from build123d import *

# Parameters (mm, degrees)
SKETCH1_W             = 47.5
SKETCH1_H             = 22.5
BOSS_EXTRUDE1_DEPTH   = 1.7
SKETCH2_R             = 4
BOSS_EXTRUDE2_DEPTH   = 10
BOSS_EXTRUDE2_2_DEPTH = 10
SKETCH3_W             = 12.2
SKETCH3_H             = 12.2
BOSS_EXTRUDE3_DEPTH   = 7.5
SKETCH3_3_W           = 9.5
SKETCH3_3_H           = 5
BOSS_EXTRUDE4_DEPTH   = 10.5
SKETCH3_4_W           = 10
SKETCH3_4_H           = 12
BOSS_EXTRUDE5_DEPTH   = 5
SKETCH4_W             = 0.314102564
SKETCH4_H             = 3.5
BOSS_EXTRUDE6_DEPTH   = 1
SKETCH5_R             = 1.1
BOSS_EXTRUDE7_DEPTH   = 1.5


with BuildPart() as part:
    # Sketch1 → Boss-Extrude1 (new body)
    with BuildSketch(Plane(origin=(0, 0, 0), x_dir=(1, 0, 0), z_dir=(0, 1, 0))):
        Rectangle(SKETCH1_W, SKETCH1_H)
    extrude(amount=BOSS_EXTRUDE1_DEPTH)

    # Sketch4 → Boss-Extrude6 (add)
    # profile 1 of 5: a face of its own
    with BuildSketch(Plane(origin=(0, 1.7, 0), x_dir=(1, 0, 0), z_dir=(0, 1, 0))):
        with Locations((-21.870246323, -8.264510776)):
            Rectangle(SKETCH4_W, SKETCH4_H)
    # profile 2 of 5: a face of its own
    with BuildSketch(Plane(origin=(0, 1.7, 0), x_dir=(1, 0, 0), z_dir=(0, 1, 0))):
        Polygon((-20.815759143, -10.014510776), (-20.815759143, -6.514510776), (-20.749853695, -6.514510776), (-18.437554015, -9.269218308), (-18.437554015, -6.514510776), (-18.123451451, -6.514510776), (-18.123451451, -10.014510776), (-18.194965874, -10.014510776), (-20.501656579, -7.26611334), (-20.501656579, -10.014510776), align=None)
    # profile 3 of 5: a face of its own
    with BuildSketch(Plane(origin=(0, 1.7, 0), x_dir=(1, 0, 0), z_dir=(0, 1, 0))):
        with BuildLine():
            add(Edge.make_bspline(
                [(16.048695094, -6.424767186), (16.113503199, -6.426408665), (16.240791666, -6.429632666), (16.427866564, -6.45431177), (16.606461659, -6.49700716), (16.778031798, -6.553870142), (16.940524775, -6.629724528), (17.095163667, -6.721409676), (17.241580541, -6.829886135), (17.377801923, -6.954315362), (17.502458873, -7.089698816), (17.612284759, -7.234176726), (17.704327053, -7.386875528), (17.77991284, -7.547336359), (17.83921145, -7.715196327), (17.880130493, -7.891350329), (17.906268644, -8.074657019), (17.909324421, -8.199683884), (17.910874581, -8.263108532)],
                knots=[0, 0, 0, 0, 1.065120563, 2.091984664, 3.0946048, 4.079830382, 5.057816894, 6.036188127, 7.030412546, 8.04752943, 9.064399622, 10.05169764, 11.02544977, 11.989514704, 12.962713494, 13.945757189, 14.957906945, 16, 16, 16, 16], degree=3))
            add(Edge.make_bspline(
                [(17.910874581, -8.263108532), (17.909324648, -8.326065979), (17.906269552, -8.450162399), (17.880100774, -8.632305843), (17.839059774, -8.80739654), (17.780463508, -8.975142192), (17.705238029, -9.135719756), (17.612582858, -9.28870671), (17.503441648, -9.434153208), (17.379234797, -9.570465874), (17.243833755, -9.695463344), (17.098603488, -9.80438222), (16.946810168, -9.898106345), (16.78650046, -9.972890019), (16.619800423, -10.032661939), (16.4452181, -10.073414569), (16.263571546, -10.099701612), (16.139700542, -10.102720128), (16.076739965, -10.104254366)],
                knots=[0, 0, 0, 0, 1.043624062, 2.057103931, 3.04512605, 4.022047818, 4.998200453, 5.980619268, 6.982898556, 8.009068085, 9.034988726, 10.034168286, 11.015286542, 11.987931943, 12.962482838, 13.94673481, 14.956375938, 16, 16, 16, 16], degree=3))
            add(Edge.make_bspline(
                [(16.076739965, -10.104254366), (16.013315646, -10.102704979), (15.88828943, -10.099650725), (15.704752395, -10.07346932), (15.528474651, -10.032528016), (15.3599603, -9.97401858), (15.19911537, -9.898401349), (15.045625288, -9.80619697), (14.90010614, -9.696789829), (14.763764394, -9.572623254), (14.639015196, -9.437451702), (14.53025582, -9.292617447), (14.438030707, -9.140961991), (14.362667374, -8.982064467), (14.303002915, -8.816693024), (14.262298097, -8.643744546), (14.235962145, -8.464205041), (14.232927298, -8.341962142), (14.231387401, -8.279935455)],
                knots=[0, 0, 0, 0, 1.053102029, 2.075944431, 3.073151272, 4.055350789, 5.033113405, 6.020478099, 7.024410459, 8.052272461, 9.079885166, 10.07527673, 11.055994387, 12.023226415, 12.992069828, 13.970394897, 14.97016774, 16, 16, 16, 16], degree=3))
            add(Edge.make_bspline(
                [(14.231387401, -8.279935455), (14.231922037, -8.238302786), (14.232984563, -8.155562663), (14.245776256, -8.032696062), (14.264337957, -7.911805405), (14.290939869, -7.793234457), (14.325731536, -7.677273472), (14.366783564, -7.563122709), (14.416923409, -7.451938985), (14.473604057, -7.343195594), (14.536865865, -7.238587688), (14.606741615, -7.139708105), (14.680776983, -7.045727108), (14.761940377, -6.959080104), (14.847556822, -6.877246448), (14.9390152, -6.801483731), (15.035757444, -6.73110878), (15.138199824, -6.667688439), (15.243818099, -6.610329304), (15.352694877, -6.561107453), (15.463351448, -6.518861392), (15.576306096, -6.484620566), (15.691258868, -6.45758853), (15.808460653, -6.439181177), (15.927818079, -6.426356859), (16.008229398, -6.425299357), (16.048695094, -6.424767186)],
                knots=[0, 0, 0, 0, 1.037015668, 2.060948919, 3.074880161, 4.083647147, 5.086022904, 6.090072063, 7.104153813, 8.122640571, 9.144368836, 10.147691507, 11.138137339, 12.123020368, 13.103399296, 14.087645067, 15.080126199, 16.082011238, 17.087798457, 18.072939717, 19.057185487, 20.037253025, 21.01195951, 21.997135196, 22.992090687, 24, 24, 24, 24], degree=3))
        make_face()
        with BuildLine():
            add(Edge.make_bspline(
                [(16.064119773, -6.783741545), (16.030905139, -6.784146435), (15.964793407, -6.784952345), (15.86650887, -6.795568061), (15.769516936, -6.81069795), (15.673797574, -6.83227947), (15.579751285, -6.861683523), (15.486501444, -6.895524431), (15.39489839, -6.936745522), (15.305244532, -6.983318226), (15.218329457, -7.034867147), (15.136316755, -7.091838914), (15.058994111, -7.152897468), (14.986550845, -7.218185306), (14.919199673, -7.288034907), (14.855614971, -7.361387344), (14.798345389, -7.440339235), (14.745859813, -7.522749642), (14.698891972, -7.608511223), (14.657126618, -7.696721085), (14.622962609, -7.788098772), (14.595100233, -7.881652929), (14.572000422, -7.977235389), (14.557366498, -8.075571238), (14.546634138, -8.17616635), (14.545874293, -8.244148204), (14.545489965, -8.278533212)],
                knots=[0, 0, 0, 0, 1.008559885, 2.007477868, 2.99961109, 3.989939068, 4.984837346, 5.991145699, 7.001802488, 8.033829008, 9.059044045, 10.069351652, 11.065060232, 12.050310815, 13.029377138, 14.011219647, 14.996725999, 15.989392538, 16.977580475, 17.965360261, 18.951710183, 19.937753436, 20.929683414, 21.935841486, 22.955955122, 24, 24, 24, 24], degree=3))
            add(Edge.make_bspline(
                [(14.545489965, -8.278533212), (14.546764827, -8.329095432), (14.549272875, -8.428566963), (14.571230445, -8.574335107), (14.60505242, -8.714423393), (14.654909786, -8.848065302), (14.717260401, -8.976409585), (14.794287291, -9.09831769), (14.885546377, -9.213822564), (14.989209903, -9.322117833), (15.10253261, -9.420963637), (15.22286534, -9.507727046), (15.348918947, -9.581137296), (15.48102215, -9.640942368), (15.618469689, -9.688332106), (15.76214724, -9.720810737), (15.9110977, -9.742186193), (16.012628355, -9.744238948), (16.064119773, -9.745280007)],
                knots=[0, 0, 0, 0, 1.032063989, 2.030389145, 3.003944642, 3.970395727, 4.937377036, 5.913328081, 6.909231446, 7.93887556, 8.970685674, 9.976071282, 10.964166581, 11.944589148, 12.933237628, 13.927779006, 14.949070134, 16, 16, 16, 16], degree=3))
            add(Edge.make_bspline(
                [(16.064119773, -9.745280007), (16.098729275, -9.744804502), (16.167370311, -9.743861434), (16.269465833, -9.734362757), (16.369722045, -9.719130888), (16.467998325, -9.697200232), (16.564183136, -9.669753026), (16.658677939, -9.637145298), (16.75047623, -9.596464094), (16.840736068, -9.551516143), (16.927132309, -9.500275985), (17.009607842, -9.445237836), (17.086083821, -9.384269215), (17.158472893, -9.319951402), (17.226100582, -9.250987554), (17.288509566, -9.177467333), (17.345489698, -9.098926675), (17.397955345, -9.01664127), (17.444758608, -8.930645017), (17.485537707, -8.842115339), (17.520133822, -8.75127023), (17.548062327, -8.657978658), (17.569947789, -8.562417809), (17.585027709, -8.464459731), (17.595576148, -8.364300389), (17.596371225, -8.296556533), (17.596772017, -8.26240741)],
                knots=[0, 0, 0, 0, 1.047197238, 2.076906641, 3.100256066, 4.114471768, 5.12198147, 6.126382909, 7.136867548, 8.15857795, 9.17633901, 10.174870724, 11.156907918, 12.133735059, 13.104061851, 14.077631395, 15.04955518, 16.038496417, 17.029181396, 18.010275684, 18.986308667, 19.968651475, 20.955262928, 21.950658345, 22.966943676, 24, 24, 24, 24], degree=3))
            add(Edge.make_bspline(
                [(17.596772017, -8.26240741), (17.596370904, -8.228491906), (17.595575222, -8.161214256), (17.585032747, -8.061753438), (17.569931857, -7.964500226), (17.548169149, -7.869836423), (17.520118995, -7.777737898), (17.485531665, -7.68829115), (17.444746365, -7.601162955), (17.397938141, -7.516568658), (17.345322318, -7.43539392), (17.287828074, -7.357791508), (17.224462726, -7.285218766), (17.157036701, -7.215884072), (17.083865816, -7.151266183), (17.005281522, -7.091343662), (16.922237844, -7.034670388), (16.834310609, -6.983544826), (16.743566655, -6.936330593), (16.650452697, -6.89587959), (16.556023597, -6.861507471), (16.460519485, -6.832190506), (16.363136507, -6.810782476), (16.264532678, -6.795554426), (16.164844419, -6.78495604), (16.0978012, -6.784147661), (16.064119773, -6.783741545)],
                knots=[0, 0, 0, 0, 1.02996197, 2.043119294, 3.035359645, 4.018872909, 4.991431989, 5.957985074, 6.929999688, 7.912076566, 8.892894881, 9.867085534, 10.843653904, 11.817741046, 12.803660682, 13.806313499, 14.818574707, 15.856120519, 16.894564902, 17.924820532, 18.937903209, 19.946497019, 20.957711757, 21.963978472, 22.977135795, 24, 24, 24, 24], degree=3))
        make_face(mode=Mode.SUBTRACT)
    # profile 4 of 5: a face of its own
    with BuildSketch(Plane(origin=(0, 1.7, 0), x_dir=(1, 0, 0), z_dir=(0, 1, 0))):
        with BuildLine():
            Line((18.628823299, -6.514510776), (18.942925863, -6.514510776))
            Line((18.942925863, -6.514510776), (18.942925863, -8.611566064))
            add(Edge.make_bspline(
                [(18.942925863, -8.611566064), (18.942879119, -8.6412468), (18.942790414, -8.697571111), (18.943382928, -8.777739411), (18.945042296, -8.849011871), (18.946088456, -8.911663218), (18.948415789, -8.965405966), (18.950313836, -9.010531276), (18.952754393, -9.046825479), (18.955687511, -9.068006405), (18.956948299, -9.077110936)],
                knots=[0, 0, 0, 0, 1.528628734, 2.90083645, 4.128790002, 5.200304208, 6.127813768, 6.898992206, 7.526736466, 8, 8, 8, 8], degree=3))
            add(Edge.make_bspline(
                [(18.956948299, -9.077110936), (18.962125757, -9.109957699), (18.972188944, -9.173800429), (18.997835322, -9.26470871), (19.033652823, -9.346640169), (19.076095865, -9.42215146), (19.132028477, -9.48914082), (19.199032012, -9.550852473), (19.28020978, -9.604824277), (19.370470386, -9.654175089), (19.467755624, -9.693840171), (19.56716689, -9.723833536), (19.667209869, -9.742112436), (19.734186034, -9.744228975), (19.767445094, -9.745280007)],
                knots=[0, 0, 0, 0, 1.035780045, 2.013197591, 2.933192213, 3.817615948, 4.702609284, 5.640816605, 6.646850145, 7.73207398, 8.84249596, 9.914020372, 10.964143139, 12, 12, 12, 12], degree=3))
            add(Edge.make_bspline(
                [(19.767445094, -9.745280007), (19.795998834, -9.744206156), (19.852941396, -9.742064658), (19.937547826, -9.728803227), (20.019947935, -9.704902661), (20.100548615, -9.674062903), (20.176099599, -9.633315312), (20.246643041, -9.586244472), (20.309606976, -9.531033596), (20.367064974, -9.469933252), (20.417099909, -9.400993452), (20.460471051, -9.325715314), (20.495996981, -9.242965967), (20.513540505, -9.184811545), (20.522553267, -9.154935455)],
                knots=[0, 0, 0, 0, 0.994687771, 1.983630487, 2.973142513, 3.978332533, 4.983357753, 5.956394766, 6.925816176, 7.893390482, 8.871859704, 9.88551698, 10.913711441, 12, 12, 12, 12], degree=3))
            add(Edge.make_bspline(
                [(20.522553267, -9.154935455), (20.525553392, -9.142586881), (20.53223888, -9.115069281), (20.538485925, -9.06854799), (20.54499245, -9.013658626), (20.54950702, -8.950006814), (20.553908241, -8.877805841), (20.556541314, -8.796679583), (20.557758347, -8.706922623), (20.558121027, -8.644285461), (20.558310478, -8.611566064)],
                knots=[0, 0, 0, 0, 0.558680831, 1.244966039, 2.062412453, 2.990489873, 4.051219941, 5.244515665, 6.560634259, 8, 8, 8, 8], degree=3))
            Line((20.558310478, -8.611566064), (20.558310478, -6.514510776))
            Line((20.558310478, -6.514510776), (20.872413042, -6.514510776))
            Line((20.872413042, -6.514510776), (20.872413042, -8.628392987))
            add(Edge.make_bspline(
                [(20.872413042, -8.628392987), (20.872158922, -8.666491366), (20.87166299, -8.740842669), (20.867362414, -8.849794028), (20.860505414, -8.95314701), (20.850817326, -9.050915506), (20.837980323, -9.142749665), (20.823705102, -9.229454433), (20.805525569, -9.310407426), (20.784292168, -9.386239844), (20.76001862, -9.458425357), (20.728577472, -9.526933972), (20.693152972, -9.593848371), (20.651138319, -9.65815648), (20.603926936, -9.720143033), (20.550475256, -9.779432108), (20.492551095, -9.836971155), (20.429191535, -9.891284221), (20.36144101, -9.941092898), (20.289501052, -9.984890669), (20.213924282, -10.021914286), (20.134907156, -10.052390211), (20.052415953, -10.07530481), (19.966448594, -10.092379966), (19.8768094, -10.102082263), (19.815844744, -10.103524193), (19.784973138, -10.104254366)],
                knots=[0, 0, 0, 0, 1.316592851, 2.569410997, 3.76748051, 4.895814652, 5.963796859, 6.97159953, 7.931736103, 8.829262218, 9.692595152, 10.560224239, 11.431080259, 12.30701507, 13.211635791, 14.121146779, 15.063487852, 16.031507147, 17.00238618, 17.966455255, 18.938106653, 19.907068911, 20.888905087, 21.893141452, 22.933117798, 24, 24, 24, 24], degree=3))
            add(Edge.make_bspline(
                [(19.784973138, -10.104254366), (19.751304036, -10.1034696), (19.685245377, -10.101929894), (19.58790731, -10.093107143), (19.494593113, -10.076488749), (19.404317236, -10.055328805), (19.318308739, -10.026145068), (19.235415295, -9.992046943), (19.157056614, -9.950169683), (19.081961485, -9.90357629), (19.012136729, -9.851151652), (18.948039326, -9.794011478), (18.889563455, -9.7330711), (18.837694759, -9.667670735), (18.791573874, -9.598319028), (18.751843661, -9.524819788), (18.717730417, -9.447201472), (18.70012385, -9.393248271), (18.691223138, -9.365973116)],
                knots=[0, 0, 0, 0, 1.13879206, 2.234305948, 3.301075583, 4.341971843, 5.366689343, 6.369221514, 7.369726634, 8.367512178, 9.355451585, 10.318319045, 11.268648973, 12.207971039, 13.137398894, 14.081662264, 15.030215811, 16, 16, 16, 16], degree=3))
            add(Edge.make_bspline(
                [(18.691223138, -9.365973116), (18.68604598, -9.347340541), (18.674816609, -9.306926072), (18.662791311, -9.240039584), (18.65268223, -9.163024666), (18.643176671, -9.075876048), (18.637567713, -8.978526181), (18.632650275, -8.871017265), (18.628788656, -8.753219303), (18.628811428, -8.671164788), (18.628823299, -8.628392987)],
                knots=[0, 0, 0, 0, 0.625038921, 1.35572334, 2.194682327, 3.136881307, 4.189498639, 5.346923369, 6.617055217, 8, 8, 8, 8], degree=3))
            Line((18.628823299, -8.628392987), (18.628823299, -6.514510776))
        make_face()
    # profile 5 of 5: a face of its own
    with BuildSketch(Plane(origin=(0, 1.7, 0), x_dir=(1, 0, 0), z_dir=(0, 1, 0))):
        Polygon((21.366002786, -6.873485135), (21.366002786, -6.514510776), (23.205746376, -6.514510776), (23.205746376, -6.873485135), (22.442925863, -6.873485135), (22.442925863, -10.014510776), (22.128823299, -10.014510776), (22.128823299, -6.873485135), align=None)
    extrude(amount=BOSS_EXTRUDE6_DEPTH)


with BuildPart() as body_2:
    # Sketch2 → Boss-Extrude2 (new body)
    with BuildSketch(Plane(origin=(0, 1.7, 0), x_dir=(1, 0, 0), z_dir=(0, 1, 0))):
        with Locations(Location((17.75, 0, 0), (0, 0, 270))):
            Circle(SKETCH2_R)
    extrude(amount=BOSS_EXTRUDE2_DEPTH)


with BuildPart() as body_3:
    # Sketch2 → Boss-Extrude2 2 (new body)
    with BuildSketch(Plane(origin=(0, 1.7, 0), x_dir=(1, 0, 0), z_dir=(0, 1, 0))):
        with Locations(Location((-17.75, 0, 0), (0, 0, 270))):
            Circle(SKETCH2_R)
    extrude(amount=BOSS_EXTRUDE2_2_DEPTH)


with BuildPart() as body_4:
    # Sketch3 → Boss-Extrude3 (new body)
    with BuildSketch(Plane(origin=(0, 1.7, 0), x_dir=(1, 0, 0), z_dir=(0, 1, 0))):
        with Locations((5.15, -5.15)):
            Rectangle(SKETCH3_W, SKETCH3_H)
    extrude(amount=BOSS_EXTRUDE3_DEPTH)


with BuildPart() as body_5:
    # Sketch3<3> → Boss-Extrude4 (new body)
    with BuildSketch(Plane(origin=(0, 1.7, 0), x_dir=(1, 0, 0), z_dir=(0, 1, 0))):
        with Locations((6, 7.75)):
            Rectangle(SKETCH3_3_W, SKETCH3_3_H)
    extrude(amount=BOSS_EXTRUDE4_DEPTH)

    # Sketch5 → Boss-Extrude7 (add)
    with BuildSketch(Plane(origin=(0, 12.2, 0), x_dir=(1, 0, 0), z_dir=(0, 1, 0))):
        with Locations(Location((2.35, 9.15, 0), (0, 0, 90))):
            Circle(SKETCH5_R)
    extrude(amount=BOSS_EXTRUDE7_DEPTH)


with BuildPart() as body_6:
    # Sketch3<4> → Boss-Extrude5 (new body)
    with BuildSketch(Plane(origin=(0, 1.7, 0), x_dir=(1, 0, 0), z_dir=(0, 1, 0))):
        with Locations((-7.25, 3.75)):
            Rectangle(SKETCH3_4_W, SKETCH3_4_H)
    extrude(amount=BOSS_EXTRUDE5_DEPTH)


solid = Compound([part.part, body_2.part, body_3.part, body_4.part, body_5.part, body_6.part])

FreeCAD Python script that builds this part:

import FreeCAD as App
import Part
import Sketcher
from FreeCAD import Vector

doc = App.newDocument("Part")
body = doc.addObject("PartDesign::Body", "Body")

# Sketch on XZ plane
sketch1 = body.newObject("Sketcher::SketchObject", "Sketch")
sketch1.AttachmentSupport = (doc.getObject("XZ_Plane"), [""])
sketch1.MapMode = "FlatFace"
sketch1.addGeometry(Part.LineSegment(Vector(-24, -11, 0), Vector(-24, 11, 0)), False)
sketch1.addGeometry(Part.LineSegment(Vector(-24, 11, 0), Vector(24, 11, 0)), False)
sketch1.addGeometry(Part.LineSegment(Vector(24, 11, 0), Vector(24, -11, 0)), False)
sketch1.addGeometry(Part.LineSegment(Vector(24, -11, 0), Vector(-24, -11, 0)), False)
sketch1.addConstraint(Sketcher.Constraint("Coincident", 0, 2, 1, 1))
sketch1.addConstraint(Sketcher.Constraint("Coincident", 1, 2, 2, 1))
sketch1.addConstraint(Sketcher.Constraint("Coincident", 2, 2, 3, 1))
sketch1.addConstraint(Sketcher.Constraint("Coincident", 3, 2, 0, 1))
sketch1.addConstraint(Sketcher.Constraint("Vertical", 0))
sketch1.addConstraint(Sketcher.Constraint("Horizontal", 1))
sketch1.addConstraint(Sketcher.Constraint("Vertical", 2))
sketch1.addConstraint(Sketcher.Constraint("Horizontal", 3))
sketch1.addConstraint(Sketcher.Constraint("Symmetric", 0, 2, 2, 2, -1, 1))
sketch1.addConstraint(Sketcher.Constraint("DistanceX", 1, 1, 1, 2, 47.5))
sketch1.addConstraint(Sketcher.Constraint("DistanceY", 0, 1, 0, 2, 22.5))
pad1 = body.newObject("PartDesign::Pad", "Pad")
pad1.Profile = sketch1
pad1.Length = 1.7
pad1.Reversed = True

# Sketch on XZ plane
sketch2 = body.newObject("Sketcher::SketchObject", "Sketch001")
sketch2.AttachmentSupport = (doc.getObject("XZ_Plane"), [""])
sketch2.MapMode = "FlatFace"
sketch2.AttachmentOffset = App.Placement(Vector(0, 0, -1.7), App.Rotation())
sketch2.addGeometry(Part.LineSegment(Vector(-22.027298, 6.514511, 0), Vector(-22.027298, 10.014511, 0)), False)
sketch2.addGeometry(Part.LineSegment(Vector(-22.027298, 10.014511, 0), Vector(-21.713195, 10.014511, 0)), False)
sketch2.addGeometry(Part.LineSegment(Vector(-21.713195, 10.014511, 0), Vector(-21.713195, 6.514511, 0)), False)
sketch2.addGeometry(Part.LineSegment(Vector(-21.713195, 6.514511, 0), Vector(-22.027298, 6.514511, 0)), False)
sketch2.addGeometry(Part.LineSegment(Vector(-20.815759, 6.514511, 0), Vector(-20.815759, 10.014511, 0)), False)
sketch2.addGeometry(Part.LineSegment(Vector(-20.815759, 10.014511, 0), Vector(-20.501657, 10.014511, 0)), False)
sketch2.addGeometry(Part.LineSegment(Vector(-20.501657, 10.014511, 0), Vector(-20.501657, 7.266113, 0)), False)
sketch2.addGeometry(Part.LineSegment(Vector(-20.501657, 7.266113, 0), Vector(-18.194966, 10.014511, 0)), False)
sketch2.addGeometry(Part.LineSegment(Vector(-18.194966, 10.014511, 0), Vector(-18.123451, 10.014511, 0)), False)
sketch2.addGeometry(Part.LineSegment(Vector(-18.123451, 10.014511, 0), Vector(-18.123451, 6.514511, 0)), False)
sketch2.addGeometry(Part.LineSegment(Vector(-18.123451, 6.514511, 0), Vector(-18.437554, 6.514511, 0)), False)
sketch2.addGeometry(Part.LineSegment(Vector(-18.437554, 6.514511, 0), Vector(-18.437554, 9.269218, 0)), False)
sketch2.addGeometry(Part.LineSegment(Vector(-18.437554, 9.269218, 0), Vector(-20.749854, 6.514511, 0)), False)
sketch2.addGeometry(Part.LineSegment(Vector(-20.749854, 6.514511, 0), Vector(-20.815759, 6.514511, 0)), False)
sketch2.addGeometry(Part.BSplineCurve([Vector(16.048695, 6.424767, 0), Vector(16.113503, 6.426409, 0), Vector(16.240792, 6.429633, 0), Vector(16.427867, 6.454312, 0), Vector(16.606462, 6.497007, 0), Vector(16.778032, 6.55387, 0), Vector(16.940525, 6.629725, 0), Vector(17.095164, 6.72141, 0), Vector(17.241581, 6.829886, 0), Vector(17.377802, 6.954315, 0), Vector(17.502459, 7.089699, 0), Vector(17.612285, 7.234177, 0), Vector(17.704327, 7.386876, 0), Vector(17.779913, 7.547336, 0), Vector(17.839211, 7.715196, 0), Vector(17.88013, 7.89135, 0), Vector(17.906269, 8.074657, 0), Vector(17.909324, 8.199684, 0), Vector(17.910875, 8.263109, 0)], [4, 1, 1, 1, 1, 1, 1, 1, 1, 1, 1, 1, 1, 1, 1, 1, 4], [0, 1.065120563, 2.091984664, 3.0946048, 4.079830382, 5.057816894, 6.036188127, 7.030412546, 8.04752943, 9.064399622, 10.05169764, 11.02544977, 11.989514704, 12.962713494, 13.945757189, 14.957906945, 16], False, 3, [1, 1, 1, 1, 1, 1, 1, 1, 1, 1, 1, 1, 1, 1, 1, 1, 1, 1, 1], False), False)
sketch2.addGeometry(Part.BSplineCurve([Vector(14.231387, 8.279935, 0), Vector(14.231922, 8.238303, 0), Vector(14.232985, 8.155563, 0), Vector(14.245776, 8.032696, 0), Vector(14.264338, 7.911805, 0), Vector(14.29094, 7.793234, 0), Vector(14.325732, 7.677273, 0), Vector(14.366784, 7.563123, 0), Vector(14.416923, 7.451939, 0), Vector(14.473604, 7.343196, 0), Vector(14.536866, 7.238588, 0), Vector(14.606742, 7.139708, 0), Vector(14.680777, 7.045727, 0), Vector(14.76194, 6.95908, 0), Vector(14.847557, 6.877246, 0), Vector(14.939015, 6.801484, 0), Vector(15.035757, 6.731109, 0), Vector(15.1382, 6.667688, 0), Vector(15.243818, 6.610329, 0), Vector(15.352695, 6.561107, 0), Vector(15.463351, 6.518861, 0), Vector(15.576306, 6.484621, 0), Vector(15.691259, 6.457589, 0), Vector(15.808461, 6.439181, 0), Vector(15.927818, 6.426357, 0), Vector(16.008229, 6.425299, 0), Vector(16.048695, 6.424767, 0)], [4, 1, 1, 1, 1, 1, 1, 1, 1, 1, 1, 1, 1, 1, 1, 1, 1, 1, 1, 1, 1, 1, 1, 1, 4], [0, 1.037015668, 2.060948919, 3.074880161, 4.083647147, 5.086022904, 6.090072063, 7.104153813, 8.122640571, 9.144368836, 10.147691507, 11.138137339, 12.123020368, 13.103399296, 14.087645067, 15.080126199, 16.082011238, 17.087798457, 18.072939717, 19.057185487, 20.037253025, 21.01195951, 21.997135196, 22.992090687, 24], False, 3, [1, 1, 1, 1, 1, 1, 1, 1, 1, 1, 1, 1, 1, 1, 1, 1, 1, 1, 1, 1, 1, 1, 1, 1, 1, 1, 1], False), False)
sketch2.addGeometry(Part.BSplineCurve([Vector(16.07674, 10.104254, 0), Vector(16.013316, 10.102705, 0), Vector(15.888289, 10.099651, 0), Vector(15.704752, 10.073469, 0), Vector(15.528475, 10.032528, 0), Vector(15.35996, 9.974019, 0), Vector(15.199115, 9.898401, 0), Vector(15.045625, 9.806197, 0), Vector(14.900106, 9.69679, 0), Vector(14.763764, 9.572623, 0), Vector(14.639015, 9.437452, 0), Vector(14.530256, 9.292617, 0), Vector(14.438031, 9.140962, 0), Vector(14.362667, 8.982064, 0), Vector(14.303003, 8.816693, 0), Vector(14.262298, 8.643745, 0), Vector(14.235962, 8.464205, 0), Vector(14.232927, 8.341962, 0), Vector(14.231387, 8.279935, 0)], [4, 1, 1, 1, 1, 1, 1, 1, 1, 1, 1, 1, 1, 1, 1, 1, 4], [0, 1.053102029, 2.075944431, 3.073151272, 4.055350789, 5.033113405, 6.020478099, 7.024410459, 8.052272461, 9.079885166, 10.07527673, 11.055994387, 12.023226415, 12.992069828, 13.970394897, 14.97016774, 16], False, 3, [1, 1, 1, 1, 1, 1, 1, 1, 1, 1, 1, 1, 1, 1, 1, 1, 1, 1, 1], False), False)
sketch2.addGeometry(Part.BSplineCurve([Vector(17.910875, 8.263109, 0), Vector(17.909325, 8.326066, 0), Vector(17.90627, 8.450162, 0), Vector(17.880101, 8.632306, 0), Vector(17.83906, 8.807397, 0), Vector(17.780464, 8.975142, 0), Vector(17.705238, 9.13572, 0), Vector(17.612583, 9.288707, 0), Vector(17.503442, 9.434153, 0), Vector(17.379235, 9.570466, 0), Vector(17.243834, 9.695463, 0), Vector(17.098603, 9.804382, 0), Vector(16.94681, 9.898106, 0), Vector(16.7865, 9.97289, 0), Vector(16.6198, 10.032662, 0), Vector(16.445218, 10.073415, 0), Vector(16.263572, 10.099702, 0), Vector(16.139701, 10.10272, 0), Vector(16.07674, 10.104254, 0)], [4, 1, 1, 1, 1, 1, 1, 1, 1, 1, 1, 1, 1, 1, 1, 1, 4], [0, 1.043624062, 2.057103931, 3.04512605, 4.022047818, 4.998200453, 5.980619268, 6.982898556, 8.009068085, 9.034988726, 10.034168286, 11.015286542, 11.987931943, 12.962482838, 13.94673481, 14.956375938, 16], False, 3, [1, 1, 1, 1, 1, 1, 1, 1, 1, 1, 1, 1, 1, 1, 1, 1, 1, 1, 1], False), False)
sketch2.addGeometry(Part.BSplineCurve([Vector(17.596772, 8.262407, 0), Vector(17.596371, 8.228492, 0), Vector(17.595575, 8.161214, 0), Vector(17.585033, 8.061753, 0), Vector(17.569932, 7.9645, 0), Vector(17.548169, 7.869836, 0), Vector(17.520119, 7.777738, 0), Vector(17.485532, 7.688291, 0), Vector(17.444746, 7.601163, 0), Vector(17.397938, 7.516569, 0), Vector(17.345322, 7.435394, 0), Vector(17.287828, 7.357792, 0), Vector(17.224463, 7.285219, 0), Vector(17.157037, 7.215884, 0), Vector(17.083866, 7.151266, 0), Vector(17.005282, 7.091344, 0), Vector(16.922238, 7.03467, 0), Vector(16.834311, 6.983545, 0), Vector(16.743567, 6.936331, 0), Vector(16.650453, 6.89588, 0), Vector(16.556024, 6.861507, 0), Vector(16.460519, 6.832191, 0), Vector(16.363137, 6.810782, 0), Vector(16.264533, 6.795554, 0), Vector(16.164844, 6.784956, 0), Vector(16.097801, 6.784148, 0), Vector(16.06412, 6.783742, 0)], [4, 1, 1, 1, 1, 1, 1, 1, 1, 1, 1, 1, 1, 1, 1, 1, 1, 1, 1, 1, 1, 1, 1, 1, 4], [0, 1.02996197, 2.043119294, 3.035359645, 4.018872909, 4.991431989, 5.957985074, 6.929999688, 7.912076566, 8.892894881, 9.867085534, 10.843653904, 11.817741046, 12.803660682, 13.806313499, 14.818574707, 15.856120519, 16.894564902, 17.924820532, 18.937903209, 19.946497019, 20.957711757, 21.963978472, 22.977135795, 24], False, 3, [1, 1, 1, 1, 1, 1, 1, 1, 1, 1, 1, 1, 1, 1, 1, 1, 1, 1, 1, 1, 1, 1, 1, 1, 1, 1, 1], False), False)
sketch2.addGeometry(Part.BSplineCurve([Vector(16.06412, 9.74528, 0), Vector(16.098729, 9.744805, 0), Vector(16.16737, 9.743861, 0), Vector(16.269466, 9.734363, 0), Vector(16.369722, 9.719131, 0), Vector(16.467998, 9.6972, 0), Vector(16.564183, 9.669753, 0), Vector(16.658678, 9.637145, 0), Vector(16.750476, 9.596464, 0), Vector(16.840736, 9.551516, 0), Vector(16.927132, 9.500276, 0), Vector(17.009608, 9.445238, 0), Vector(17.086084, 9.384269, 0), Vector(17.158473, 9.319951, 0), Vector(17.226101, 9.250988, 0), Vector(17.28851, 9.177467, 0), Vector(17.34549, 9.098927, 0), Vector(17.397955, 9.016641, 0), Vector(17.444759, 8.930645, 0), Vector(17.485538, 8.842115, 0), Vector(17.520134, 8.75127, 0), Vector(17.548062, 8.657979, 0), Vector(17.569948, 8.562418, 0), Vector(17.585028, 8.46446, 0), Vector(17.595576, 8.3643, 0), Vector(17.596371, 8.296557, 0), Vector(17.596772, 8.262407, 0)], [4, 1, 1, 1, 1, 1, 1, 1, 1, 1, 1, 1, 1, 1, 1, 1, 1, 1, 1, 1, 1, 1, 1, 1, 4], [0, 1.047197238, 2.076906641, 3.100256066, 4.114471768, 5.12198147, 6.126382909, 7.136867548, 8.15857795, 9.17633901, 10.174870724, 11.156907918, 12.133735059, 13.104061851, 14.077631395, 15.04955518, 16.038496417, 17.029181396, 18.010275684, 18.986308667, 19.968651475, 20.955262928, 21.950658345, 22.966943676, 24], False, 3, [1, 1, 1, 1, 1, 1, 1, 1, 1, 1, 1, 1, 1, 1, 1, 1, 1, 1, 1, 1, 1, 1, 1, 1, 1, 1, 1], False), False)
sketch2.addGeometry(Part.BSplineCurve([Vector(14.54549, 8.278533, 0), Vector(14.546765, 8.329095, 0), Vector(14.549273, 8.428567, 0), Vector(14.57123, 8.574335, 0), Vector(14.605052, 8.714423, 0), Vector(14.65491, 8.848065, 0), Vector(14.71726, 8.97641, 0), Vector(14.794287, 9.098318, 0), Vector(14.885546, 9.213823, 0), Vector(14.98921, 9.322118, 0), Vector(15.102533, 9.420964, 0), Vector(15.222865, 9.507727, 0), Vector(15.348919, 9.581137, 0), Vector(15.481022, 9.640942, 0), Vector(15.61847, 9.688332, 0), Vector(15.762147, 9.720811, 0), Vector(15.911098, 9.742186, 0), Vector(16.012628, 9.744239, 0), Vector(16.06412, 9.74528, 0)], [4, 1, 1, 1, 1, 1, 1, 1, 1, 1, 1, 1, 1, 1, 1, 1, 4], [0, 1.032063989, 2.030389145, 3.003944642, 3.970395727, 4.937377036, 5.913328081, 6.909231446, 7.93887556, 8.970685674, 9.976071282, 10.964166581, 11.944589148, 12.933237628, 13.927779006, 14.949070134, 16], False, 3, [1, 1, 1, 1, 1, 1, 1, 1, 1, 1, 1, 1, 1, 1, 1, 1, 1, 1, 1], False), False)
sketch2.addGeometry(Part.BSplineCurve([Vector(16.06412, 6.783742, 0), Vector(16.030905, 6.784146, 0), Vector(15.964793, 6.784952, 0), Vector(15.866509, 6.795568, 0), Vector(15.769517, 6.810698, 0), Vector(15.673798, 6.832279, 0), Vector(15.579751, 6.861684, 0), Vector(15.486501, 6.895524, 0), Vector(15.394898, 6.936746, 0), Vector(15.305245, 6.983318, 0), Vector(15.218329, 7.034867, 0), Vector(15.136317, 7.091839, 0), Vector(15.058994, 7.152897, 0), Vector(14.986551, 7.218185, 0), Vector(14.9192, 7.288035, 0), Vector(14.855615, 7.361387, 0), Vector(14.798345, 7.440339, 0), Vector(14.74586, 7.52275, 0), Vector(14.698892, 7.608511, 0), Vector(14.657127, 7.696721, 0), Vector(14.622963, 7.788099, 0), Vector(14.5951, 7.881653, 0), Vector(14.572, 7.977235, 0), Vector(14.557366, 8.075571, 0), Vector(14.546634, 8.176166, 0), Vector(14.545874, 8.244148, 0), Vector(14.54549, 8.278533, 0)], [4, 1, 1, 1, 1, 1, 1, 1, 1, 1, 1, 1, 1, 1, 1, 1, 1, 1, 1, 1, 1, 1, 1, 1, 4], [0, 1.008559885, 2.007477868, 2.99961109, 3.989939068, 4.984837346, 5.991145699, 7.001802488, 8.033829008, 9.059044045, 10.069351652, 11.065060232, 12.050310815, 13.029377138, 14.011219647, 14.996725999, 15.989392538, 16.977580475, 17.965360261, 18.951710183, 19.937753436, 20.929683414, 21.935841486, 22.955955122, 24], False, 3, [1, 1, 1, 1, 1, 1, 1, 1, 1, 1, 1, 1, 1, 1, 1, 1, 1, 1, 1, 1, 1, 1, 1, 1, 1, 1, 1], False), False)
sketch2.addGeometry(Part.LineSegment(Vector(18.942926, 6.514511, 0), Vector(18.628823, 6.514511, 0)), False)
sketch2.addGeometry(Part.LineSegment(Vector(18.628823, 6.514511, 0), Vector(18.628823, 8.628393, 0)), False)
sketch2.addGeometry(Part.BSplineCurve([Vector(18.691223, 9.365973, 0), Vector(18.686046, 9.347341, 0), Vector(18.674817, 9.306926, 0), Vector(18.662791, 9.24004, 0), Vector(18.652682, 9.163025, 0), Vector(18.643177, 9.075876, 0), Vector(18.637568, 8.978526, 0), Vector(18.63265, 8.871017, 0), Vector(18.628789, 8.753219, 0), Vector(18.628811, 8.671165, 0), Vector(18.628823, 8.628393, 0)], [4, 1, 1, 1, 1, 1, 1, 1, 4], [0, 0.625038921, 1.35572334, 2.194682327, 3.136881307, 4.189498639, 5.346923369, 6.617055217, 8], False, 3, [1, 1, 1, 1, 1, 1, 1, 1, 1, 1, 1], False), False)
sketch2.addGeometry(Part.BSplineCurve([Vector(19.784973, 10.104254, 0), Vector(19.751304, 10.10347, 0), Vector(19.685245, 10.10193, 0), Vector(19.587907, 10.093107, 0), Vector(19.494593, 10.076489, 0), Vector(19.404317, 10.055329, 0), Vector(19.318309, 10.026145, 0), Vector(19.235415, 9.992047, 0), Vector(19.157057, 9.95017, 0), Vector(19.081961, 9.903576, 0), Vector(19.012137, 9.851152, 0), Vector(18.948039, 9.794011, 0), Vector(18.889563, 9.733071, 0), Vector(18.837695, 9.667671, 0), Vector(18.791574, 9.598319, 0), Vector(18.751844, 9.52482, 0), Vector(18.71773, 9.447201, 0), Vector(18.700124, 9.393248, 0), Vector(18.691223, 9.365973, 0)], [4, 1, 1, 1, 1, 1, 1, 1, 1, 1, 1, 1, 1, 1, 1, 1, 4], [0, 1.13879206, 2.234305948, 3.301075583, 4.341971843, 5.366689343, 6.369221514, 7.369726634, 8.367512178, 9.355451585, 10.318319045, 11.268648973, 12.207971039, 13.137398894, 14.081662264, 15.030215811, 16], False, 3, [1, 1, 1, 1, 1, 1, 1, 1, 1, 1, 1, 1, 1, 1, 1, 1, 1, 1, 1], False), False)
sketch2.addGeometry(Part.BSplineCurve([Vector(20.872413, 8.628393, 0), Vector(20.872159, 8.666491, 0), Vector(20.871663, 8.740843, 0), Vector(20.867362, 8.849794, 0), Vector(20.860505, 8.953147, 0), Vector(20.850817, 9.050916, 0), Vector(20.83798, 9.14275, 0), Vector(20.823705, 9.229454, 0), Vector(20.805526, 9.310407, 0), Vector(20.784292, 9.38624, 0), Vector(20.760019, 9.458425, 0), Vector(20.728577, 9.526934, 0), Vector(20.693153, 9.593848, 0), Vector(20.651138, 9.658156, 0), Vector(20.603927, 9.720143, 0), Vector(20.550475, 9.779432, 0), Vector(20.492551, 9.836971, 0), Vector(20.429192, 9.891284, 0), Vector(20.361441, 9.941093, 0), Vector(20.289501, 9.984891, 0), Vector(20.213924, 10.021914, 0), Vector(20.134907, 10.05239, 0), Vector(20.052416, 10.075305, 0), Vector(19.966449, 10.09238, 0), Vector(19.876809, 10.102082, 0), Vector(19.815845, 10.103524, 0), Vector(19.784973, 10.104254, 0)], [4, 1, 1, 1, 1, 1, 1, 1, 1, 1, 1, 1, 1, 1, 1, 1, 1, 1, 1, 1, 1, 1, 1, 1, 4], [0, 1.316592851, 2.569410997, 3.76748051, 4.895814652, 5.963796859, 6.97159953, 7.931736103, 8.829262218, 9.692595152, 10.560224239, 11.431080259, 12.30701507, 13.211635791, 14.121146779, 15.063487852, 16.031507147, 17.00238618, 17.966455255, 18.938106653, 19.907068911, 20.888905087, 21.893141452, 22.933117798, 24], False, 3, [1, 1, 1, 1, 1, 1, 1, 1, 1, 1, 1, 1, 1, 1, 1, 1, 1, 1, 1, 1, 1, 1, 1, 1, 1, 1, 1], False), False)
sketch2.addGeometry(Part.LineSegment(Vector(20.872413, 8.628393, 0), Vector(20.872413, 6.514511, 0)), False)
sketch2.addGeometry(Part.LineSegment(Vector(20.872413, 6.514511, 0), Vector(20.55831, 6.514511, 0)), False)
sketch2.addGeometry(Part.LineSegment(Vector(20.55831, 6.514511, 0), Vector(20.55831, 8.611566, 0)), False)
sketch2.addGeometry(Part.BSplineCurve([Vector(20.522553, 9.154935, 0), Vector(20.525553, 9.142587, 0), Vector(20.532239, 9.115069, 0), Vector(20.538486, 9.068548, 0), Vector(20.544992, 9.013659, 0), Vector(20.549507, 8.950007, 0), Vector(20.553908, 8.877806, 0), Vector(20.556541, 8.79668, 0), Vector(20.557758, 8.706923, 0), Vector(20.558121, 8.644285, 0), Vector(20.55831, 8.611566, 0)], [4, 1, 1, 1, 1, 1, 1, 1, 4], [0, 0.558680831, 1.244966039, 2.062412453, 2.990489873, 4.051219941, 5.244515665, 6.560634259, 8], False, 3, [1, 1, 1, 1, 1, 1, 1, 1, 1, 1, 1], False), False)
sketch2.addGeometry(Part.BSplineCurve([Vector(19.767445, 9.74528, 0), Vector(19.795999, 9.744206, 0), Vector(19.852941, 9.742065, 0), Vector(19.937548, 9.728803, 0), Vector(20.019948, 9.704903, 0), Vector(20.100549, 9.674063, 0), Vector(20.1761, 9.633315, 0), Vector(20.246643, 9.586244, 0), Vector(20.309607, 9.531034, 0), Vector(20.367065, 9.469933, 0), Vector(20.4171, 9.400993, 0), Vector(20.460471, 9.325715, 0), Vector(20.495997, 9.242966, 0), Vector(20.513541, 9.184812, 0), Vector(20.522553, 9.154935, 0)], [4, 1, 1, 1, 1, 1, 1, 1, 1, 1, 1, 1, 4], [0, 0.994687771, 1.983630487, 2.973142513, 3.978332533, 4.983357753, 5.956394766, 6.925816176, 7.893390482, 8.871859704, 9.88551698, 10.913711441, 12], False, 3, [1, 1, 1, 1, 1, 1, 1, 1, 1, 1, 1, 1, 1, 1, 1], False), False)
sketch2.addGeometry(Part.BSplineCurve([Vector(18.956948, 9.077111, 0), Vector(18.962126, 9.109958, 0), Vector(18.972189, 9.1738, 0), Vector(18.997835, 9.264709, 0), Vector(19.033653, 9.34664, 0), Vector(19.076096, 9.422151, 0), Vector(19.132028, 9.489141, 0), Vector(19.199032, 9.550852, 0), Vector(19.28021, 9.604824, 0), Vector(19.37047, 9.654175, 0), Vector(19.467756, 9.69384, 0), Vector(19.567167, 9.723834, 0), Vector(19.66721, 9.742112, 0), Vector(19.734186, 9.744229, 0), Vector(19.767445, 9.74528, 0)], [4, 1, 1, 1, 1, 1, 1, 1, 1, 1, 1, 1, 4], [0, 1.035780045, 2.013197591, 2.933192213, 3.817615948, 4.702609284, 5.640816605, 6.646850145, 7.73207398, 8.84249596, 9.914020372, 10.964143139, 12], False, 3, [1, 1, 1, 1, 1, 1, 1, 1, 1, 1, 1, 1, 1, 1, 1], False), False)
sketch2.addGeometry(Part.BSplineCurve([Vector(18.942926, 8.611566, 0), Vector(18.942879, 8.641247, 0), Vector(18.94279, 8.697571, 0), Vector(18.943383, 8.777739, 0), Vector(18.945042, 8.849012, 0), Vector(18.946088, 8.911663, 0), Vector(18.948416, 8.965406, 0), Vector(18.950314, 9.010531, 0), Vector(18.952754, 9.046825, 0), Vector(18.955688, 9.068006, 0), Vector(18.956948, 9.077111, 0)], [4, 1, 1, 1, 1, 1, 1, 1, 4], [0, 1.528628734, 2.90083645, 4.128790002, 5.200304208, 6.127813768, 6.898992206, 7.526736466, 8], False, 3, [1, 1, 1, 1, 1, 1, 1, 1, 1, 1, 1], False), False)
sketch2.addGeometry(Part.LineSegment(Vector(18.942926, 8.611566, 0), Vector(18.942926, 6.514511, 0)), False)
sketch2.addGeometry(Part.LineSegment(Vector(21.366003, 6.514511, 0), Vector(21.366003, 6.873485, 0)), False)
sketch2.addGeometry(Part.LineSegment(Vector(21.366003, 6.873485, 0), Vector(22.128823, 6.873485, 0)), False)
sketch2.addGeometry(Part.LineSegment(Vector(22.128823, 6.873485, 0), Vector(22.128823, 10.014511, 0)), False)
sketch2.addGeometry(Part.LineSegment(Vector(22.128823, 10.014511, 0), Vector(22.442926, 10.014511, 0)), False)
sketch2.addGeometry(Part.LineSegment(Vector(22.442926, 10.014511, 0), Vector(22.442926, 6.873485, 0)), False)
sketch2.addGeometry(Part.LineSegment(Vector(22.442926, 6.873485, 0), Vector(23.205746, 6.873485, 0)), False)
sketch2.addGeometry(Part.LineSegment(Vector(23.205746, 6.873485, 0), Vector(23.205746, 6.514511, 0)), False)
sketch2.addGeometry(Part.LineSegment(Vector(23.205746, 6.514511, 0), Vector(21.366003, 6.514511, 0)), False)
sketch2.addConstraint(Sketcher.Constraint("Block", 14))
sketch2.addConstraint(Sketcher.Constraint("Block", 15))
sketch2.addConstraint(Sketcher.Constraint("Block", 16))
sketch2.addConstraint(Sketcher.Constraint("Block", 17))
sketch2.addConstraint(Sketcher.Constraint("Block", 18))
sketch2.addConstraint(Sketcher.Constraint("Block", 19))
sketch2.addConstraint(Sketcher.Constraint("Block", 20))
sketch2.addConstraint(Sketcher.Constraint("Block", 21))
sketch2.addConstraint(Sketcher.Constraint("Block", 24))
sketch2.addConstraint(Sketcher.Constraint("Block", 25))
sketch2.addConstraint(Sketcher.Constraint("Block", 26))
sketch2.addConstraint(Sketcher.Constraint("Block", 30))
sketch2.addConstraint(Sketcher.Constraint("Block", 31))
sketch2.addConstraint(Sketcher.Constraint("Block", 32))
sketch2.addConstraint(Sketcher.Constraint("Block", 33))
sketch2.addConstraint(Sketcher.Constraint("Coincident", 0, 2, 1, 1))
sketch2.addConstraint(Sketcher.Constraint("Coincident", 1, 2, 2, 1))
sketch2.addConstraint(Sketcher.Constraint("Coincident", 2, 2, 3, 1))
sketch2.addConstraint(Sketcher.Constraint("Coincident", 3, 2, 0, 1))
sketch2.addConstraint(Sketcher.Constraint("Coincident", 4, 2, 5, 1))
sketch2.addConstraint(Sketcher.Constraint("Coincident", 5, 2, 6, 1))
sketch2.addConstraint(Sketcher.Constraint("Coincident", 6, 2, 7, 1))
sketch2.addConstraint(Sketcher.Constraint("Coincident", 7, 2, 8, 1))
sketch2.addConstraint(Sketcher.Constraint("Coincident", 8, 2, 9, 1))
sketch2.addConstraint(Sketcher.Constraint("Coincident", 9, 2, 10, 1))
sketch2.addConstraint(Sketcher.Constraint("Coincident", 10, 2, 11, 1))
sketch2.addConstraint(Sketcher.Constraint("Coincident", 11, 2, 12, 1))
sketch2.addConstraint(Sketcher.Constraint("Coincident", 12, 2, 13, 1))
sketch2.addConstraint(Sketcher.Constraint("Coincident", 13, 2, 4, 1))
sketch2.addConstraint(Sketcher.Constraint("Coincident", 22, 2, 23, 1))
sketch2.addConstraint(Sketcher.Constraint("Coincident", 23, 2, 24, 2))
sketch2.addConstraint(Sketcher.Constraint("Coincident", 26, 1, 27, 1))
sketch2.addConstraint(Sketcher.Constraint("Coincident", 27, 2, 28, 1))
sketch2.addConstraint(Sketcher.Constraint("Coincident", 28, 2, 29, 1))
sketch2.addConstraint(Sketcher.Constraint("Coincident", 29, 2, 30, 2))
sketch2.addConstraint(Sketcher.Constraint("Coincident", 33, 1, 34, 1))
sketch2.addConstraint(Sketcher.Constraint("Coincident", 34, 2, 22, 1))
sketch2.addConstraint(Sketcher.Constraint("Coincident", 35, 2, 36, 1))
sketch2.addConstraint(Sketcher.Constraint("Coincident", 36, 2, 37, 1))
sketch2.addConstraint(Sketcher.Constraint("Coincident", 37, 2, 38, 1))
sketch2.addConstraint(Sketcher.Constraint("Coincident", 38, 2, 39, 1))
sketch2.addConstraint(Sketcher.Constraint("Coincident", 39, 2, 40, 1))
sketch2.addConstraint(Sketcher.Constraint("Coincident", 40, 2, 41, 1))
sketch2.addConstraint(Sketcher.Constraint("Coincident", 41, 2, 42, 1))
sketch2.addConstraint(Sketcher.Constraint("Coincident", 42, 2, 35, 1))
sketch2.addConstraint(Sketcher.Constraint("Vertical", 0))
sketch2.addConstraint(Sketcher.Constraint("Horizontal", 1))
sketch2.addConstraint(Sketcher.Constraint("Vertical", 2))
sketch2.addConstraint(Sketcher.Constraint("Horizontal", 3))
sketch2.addConstraint(Sketcher.Constraint("Vertical", 4))
sketch2.addConstraint(Sketcher.Constraint("Horizontal", 5))
sketch2.addConstraint(Sketcher.Constraint("Vertical", 6))
sketch2.addConstraint(Sketcher.Constraint("Horizontal", 8))
sketch2.addConstraint(Sketcher.Constraint("Vertical", 9))
sketch2.addConstraint(Sketcher.Constraint("Horizontal", 10))
sketch2.addConstraint(Sketcher.Constraint("Vertical", 11))
sketch2.addConstraint(Sketcher.Constraint("Horizontal", 13))
sketch2.addConstraint(Sketcher.Constraint("Horizontal", 22))
sketch2.addConstraint(Sketcher.Constraint("Vertical", 23))
sketch2.addConstraint(Sketcher.Constraint("Vertical", 27))
sketch2.addConstraint(Sketcher.Constraint("Horizontal", 28))
sketch2.addConstraint(Sketcher.Constraint("Vertical", 29))
sketch2.addConstraint(Sketcher.Constraint("Vertical", 34))
sketch2.addConstraint(Sketcher.Constraint("Vertical", 35))
sketch2.addConstraint(Sketcher.Constraint("Horizontal", 36))
sketch2.addConstraint(Sketcher.Constraint("Vertical", 37))
sketch2.addConstraint(Sketcher.Constraint("Horizontal", 38))
sketch2.addConstraint(Sketcher.Constraint("Vertical", 39))
sketch2.addConstraint(Sketcher.Constraint("Horizontal", 40))
sketch2.addConstraint(Sketcher.Constraint("Vertical", 41))
sketch2.addConstraint(Sketcher.Constraint("Horizontal", 42))
sketch2.addConstraint(Sketcher.Constraint("DistanceY", 0, 1, 0, 2, 3.5))
sketch2.addConstraint(Sketcher.Constraint("DistanceY", 4, 1, 4, 2, 3.5))
sketch2.addConstraint(Sketcher.Constraint("DistanceY", 9, 2, 9, 1, 3.5))
sketch2.addConstraint(Sketcher.Constraint("DistanceY", 2, 2, 4, 2, 3.5))
sketch2.addConstraint(Sketcher.Constraint("DistanceY", 22, 2, 8, 2, 3.5))
sketch2.addConstraint(Sketcher.Constraint("DistanceY", 27, 2, 8, 2, 3.5))
sketch2.addConstraint(Sketcher.Constraint("DistanceY", 27, 2, 37, 2, 3.5))
sketch2.addConstraint(Sketcher.Constraint("DistanceX", 23, 2, 37, 2, 3.5))
sketch2.addConstraint(Sketcher.Constraint("DistanceX", 36, 1, 36, 2, 0.762821))
sketch2.addConstraint(Sketcher.Constraint("DistanceX", 40, 1, 40, 2, 0.762821))
sketch2.addConstraint(Sketcher.Constraint("DistanceX", 12, 2, 10, 2, 2.3123))
sketch2.addConstraint(Sketcher.Constraint("DistanceX", 1, 1, 1, 2, 0.314103))
sketch2.addConstraint(Sketcher.Constraint("DistanceX", 5, 1, 5, 2, 0.314103))
sketch2.addConstraint(Sketcher.Constraint("DistanceX", 8, 1, 8, 2, 0.071514))
sketch2.addConstraint(Sketcher.Constraint("DistanceX", 10, 2, 10, 1, 0.314103))
sketch2.addConstraint(Sketcher.Constraint("DistanceX", 13, 2, 13, 1, 0.065905))
sketch2.addConstraint(Sketcher.Constraint("DistanceX", 38, 1, 38, 2, 0.314103))
sketch2.addConstraint(Sketcher.Constraint("DistanceY", 6, 2, 6, 1, 2.748397))
sketch2.addConstraint(Sketcher.Constraint("DistanceY", 11, 1, 11, 2, 2.754708))
sketch2.addConstraint(Sketcher.Constraint("DistanceY", 23, 1, 23, 2, 2.113882))
sketch2.addConstraint(Sketcher.Constraint("DistanceY", 35, 1, 35, 2, 0.358974))
sketch2.addConstraint(Sketcher.Constraint("DistanceY", 37, 1, 37, 2, 3.141026))
sketch2.addConstraint(Sketcher.Constraint("DistanceY", 39, 2, 39, 1, 3.141026))
sketch2.addConstraint(Sketcher.Constraint("DistanceY", -1, 1, 0, 2, 10.014511))
sketch2.addConstraint(Sketcher.Constraint("DistanceX", 4, 2, -1, 1, 20.815759))
sketch2.addConstraint(Sketcher.Constraint("DistanceX", 0, 2, 4, 2, 1.211538))
pad2 = body.newObject("PartDesign::Pad", "Pad001")
pad2.Profile = sketch2
pad2.Length = 1
pad2.Reversed = True
body2 = doc.addObject("PartDesign::Body", "Body001")

# Sketch on XZ plane
sketch3 = body2.newObject("Sketcher::SketchObject", "Sketch002")
sketch3.AttachmentSupport = (doc.getObject("XZ_Plane001"), [""])
sketch3.MapMode = "FlatFace"
sketch3.AttachmentOffset = App.Placement(Vector(0, 0, -1.7), App.Rotation())
sketch3.addGeometry(Part.Circle(Vector(17.8, 0, 0), Vector(0, 0, 1), 4), False)
sketch3.addConstraint(Sketcher.Constraint("PointOnObject", 0, 3, -1))
sketch3.addConstraint(Sketcher.Constraint("Diameter", 0, 8.0))
sketch3.addConstraint(Sketcher.Constraint("DistanceX", -1, 1, 0, 3, 17.75))
pad3 = body2.newObject("PartDesign::Pad", "Pad002")
pad3.Profile = sketch3
pad3.Length = 10
pad3.Reversed = True
body3 = doc.addObject("PartDesign::Body", "Body002")

# Sketch on XZ plane
sketch4 = body3.newObject("Sketcher::SketchObject", "Sketch003")
sketch4.AttachmentSupport = (doc.getObject("XZ_Plane002"), [""])
sketch4.MapMode = "FlatFace"
sketch4.AttachmentOffset = App.Placement(Vector(0, 0, -1.7), App.Rotation())
sketch4.addGeometry(Part.Circle(Vector(-17.8, 0, 0), Vector(0, 0, 1), 4), False)
sketch4.addConstraint(Sketcher.Constraint("PointOnObject", 0, 3, -1))
sketch4.addConstraint(Sketcher.Constraint("Diameter", 0, 8.0))
sketch4.addConstraint(Sketcher.Constraint("DistanceX", 0, 3, -1, 1, 17.75))
pad4 = body3.newObject("PartDesign::Pad", "Pad003")
pad4.Profile = sketch4
pad4.Length = 10
pad4.Reversed = True
body4 = doc.addObject("PartDesign::Body", "Body003")

# Sketch on XZ plane
sketch5 = body4.newObject("Sketcher::SketchObject", "Sketch004")
sketch5.AttachmentSupport = (doc.getObject("XZ_Plane003"), [""])
sketch5.MapMode = "FlatFace"
sketch5.AttachmentOffset = App.Placement(Vector(0, 0, -1.7), App.Rotation())
sketch5.addGeometry(Part.LineSegment(Vector(-1, -1, 0), Vector(-1, 11, 0)), False)
sketch5.addGeometry(Part.LineSegment(Vector(-1, 11, 0), Vector(11, 11, 0)), False)
sketch5.addGeometry(Part.LineSegment(Vector(11, 11, 0), Vector(11, -1, 0)), False)
sketch5.addGeometry(Part.LineSegment(Vector(11, -1, 0), Vector(-1, -1, 0)), False)
sketch5.addConstraint(Sketcher.Constraint("Coincident", 0, 2, 1, 1))
sketch5.addConstraint(Sketcher.Constraint("Coincident", 1, 2, 2, 1))
sketch5.addConstraint(Sketcher.Constraint("Coincident", 2, 2, 3, 1))
sketch5.addConstraint(Sketcher.Constraint("Coincident", 3, 2, 0, 1))
sketch5.addConstraint(Sketcher.Constraint("Vertical", 0))
sketch5.addConstraint(Sketcher.Constraint("Horizontal", 1))
sketch5.addConstraint(Sketcher.Constraint("Vertical", 2))
sketch5.addConstraint(Sketcher.Constraint("Horizontal", 3))
sketch5.addConstraint(Sketcher.Constraint("Equal", 3, 0))
sketch5.addConstraint(Sketcher.Constraint("DistanceX", 1, 1, 1, 2, 12.2))
sketch5.addConstraint(Sketcher.Constraint("DistanceX", 0, 2, -1, 1, 0.95))
sketch5.addConstraint(Sketcher.Constraint("DistanceY", -1, 1, 0, 2, 11.25))
pad5 = body4.newObject("PartDesign::Pad", "Pad004")
pad5.Profile = sketch5
pad5.Length = 7.5
pad5.Reversed = True
body5 = doc.addObject("PartDesign::Body", "Body004")

# Sketch on XZ plane
sketch6 = body5.newObject("Sketcher::SketchObject", "Sketch005")
sketch6.AttachmentSupport = (doc.getObject("XZ_Plane004"), [""])
sketch6.MapMode = "FlatFace"
sketch6.AttachmentOffset = App.Placement(Vector(0, 0, -1.7), App.Rotation())
sketch6.addGeometry(Part.LineSegment(Vector(1, -10, 0), Vector(1, -5, 0)), False)
sketch6.addGeometry(Part.LineSegment(Vector(1, -5, 0), Vector(11, -5, 0)), False)
sketch6.addGeometry(Part.LineSegment(Vector(11, -5, 0), Vector(11, -10, 0)), False)
sketch6.addGeometry(Part.LineSegment(Vector(11, -10, 0), Vector(1, -10, 0)), False)
sketch6.addConstraint(Sketcher.Constraint("Coincident", 0, 2, 1, 1))
sketch6.addConstraint(Sketcher.Constraint("Coincident", 1, 2, 2, 1))
sketch6.addConstraint(Sketcher.Constraint("Coincident", 2, 2, 3, 1))
sketch6.addConstraint(Sketcher.Constraint("Coincident", 3, 2, 0, 1))
sketch6.addConstraint(Sketcher.Constraint("Vertical", 0))
sketch6.addConstraint(Sketcher.Constraint("Horizontal", 1))
sketch6.addConstraint(Sketcher.Constraint("Vertical", 2))
sketch6.addConstraint(Sketcher.Constraint("Horizontal", 3))
sketch6.addConstraint(Sketcher.Constraint("DistanceY", 0, 1, 0, 2, 5.0))
sketch6.addConstraint(Sketcher.Constraint("DistanceX", 1, 1, 1, 2, 9.5))
sketch6.addConstraint(Sketcher.Constraint("DistanceX", -1, 1, 0, 2, 1.25))
sketch6.addConstraint(Sketcher.Constraint("DistanceY", 0, 2, -1, 1, 5.25))
pad6 = body5.newObject("PartDesign::Pad", "Pad005")
pad6.Profile = sketch6
pad6.Length = 10.5
pad6.Reversed = True

# Sketch on XZ plane
sketch7 = body5.newObject("Sketcher::SketchObject", "Sketch006")
sketch7.AttachmentSupport = (doc.getObject("XZ_Plane004"), [""])
sketch7.MapMode = "FlatFace"
sketch7.AttachmentOffset = App.Placement(Vector(0, 0, -12.2), App.Rotation())
sketch7.addGeometry(Part.Circle(Vector(2.4, -9.2, 0), Vector(0, 0, 1), 1.1), False)
sketch7.addConstraint(Sketcher.Constraint("Diameter", 0, 2.2))
sketch7.addConstraint(Sketcher.Constraint("DistanceX", -1, 1, 0, 3, 2.35))
sketch7.addConstraint(Sketcher.Constraint("DistanceY", 0, 3, -1, 1, 9.15))
pad7 = body5.newObject("PartDesign::Pad", "Pad006")
pad7.Profile = sketch7
pad7.Length = 1.5
pad7.Reversed = True
body6 = doc.addObject("PartDesign::Body", "Body005")

# Sketch on XZ plane
sketch8 = body6.newObject("Sketcher::SketchObject", "Sketch007")
sketch8.AttachmentSupport = (doc.getObject("XZ_Plane005"), [""])
sketch8.MapMode = "FlatFace"
sketch8.AttachmentOffset = App.Placement(Vector(0, 0, -1.7), App.Rotation())
sketch8.addGeometry(Part.LineSegment(Vector(-12, -10, 0), Vector(-12, 2, 0)), False)
sketch8.addGeometry(Part.LineSegment(Vector(-12, 2, 0), Vector(-2, 2, 0)), False)
sketch8.addGeometry(Part.LineSegment(Vector(-2, 2, 0), Vector(-2, -10, 0)), False)
sketch8.addGeometry(Part.LineSegment(Vector(-2, -10, 0), Vector(-12, -10, 0)), False)
sketch8.addConstraint(Sketcher.Constraint("Coincident", 0, 2, 1, 1))
sketch8.addConstraint(Sketcher.Constraint("Coincident", 1, 2, 2, 1))
sketch8.addConstraint(Sketcher.Constraint("Coincident", 2, 2, 3, 1))
sketch8.addConstraint(Sketcher.Constraint("Coincident", 3, 2, 0, 1))
sketch8.addConstraint(Sketcher.Constraint("Vertical", 0))
sketch8.addConstraint(Sketcher.Constraint("Horizontal", 1))
sketch8.addConstraint(Sketcher.Constraint("Vertical", 2))
sketch8.addConstraint(Sketcher.Constraint("Horizontal", 3))
sketch8.addConstraint(Sketcher.Constraint("DistanceX", 1, 1, 1, 2, 10.0))
sketch8.addConstraint(Sketcher.Constraint("DistanceY", 0, 1, 0, 2, 12.0))
sketch8.addConstraint(Sketcher.Constraint("DistanceX", 0, 2, -1, 1, 12.25))
sketch8.addConstraint(Sketcher.Constraint("DistanceY", -1, 1, 0, 2, 2.25))
pad8 = body6.newObject("PartDesign::Pad", "Pad007")
pad8.Profile = sketch8
pad8.Length = 5
pad8.Reversed = True

doc.recompute()
